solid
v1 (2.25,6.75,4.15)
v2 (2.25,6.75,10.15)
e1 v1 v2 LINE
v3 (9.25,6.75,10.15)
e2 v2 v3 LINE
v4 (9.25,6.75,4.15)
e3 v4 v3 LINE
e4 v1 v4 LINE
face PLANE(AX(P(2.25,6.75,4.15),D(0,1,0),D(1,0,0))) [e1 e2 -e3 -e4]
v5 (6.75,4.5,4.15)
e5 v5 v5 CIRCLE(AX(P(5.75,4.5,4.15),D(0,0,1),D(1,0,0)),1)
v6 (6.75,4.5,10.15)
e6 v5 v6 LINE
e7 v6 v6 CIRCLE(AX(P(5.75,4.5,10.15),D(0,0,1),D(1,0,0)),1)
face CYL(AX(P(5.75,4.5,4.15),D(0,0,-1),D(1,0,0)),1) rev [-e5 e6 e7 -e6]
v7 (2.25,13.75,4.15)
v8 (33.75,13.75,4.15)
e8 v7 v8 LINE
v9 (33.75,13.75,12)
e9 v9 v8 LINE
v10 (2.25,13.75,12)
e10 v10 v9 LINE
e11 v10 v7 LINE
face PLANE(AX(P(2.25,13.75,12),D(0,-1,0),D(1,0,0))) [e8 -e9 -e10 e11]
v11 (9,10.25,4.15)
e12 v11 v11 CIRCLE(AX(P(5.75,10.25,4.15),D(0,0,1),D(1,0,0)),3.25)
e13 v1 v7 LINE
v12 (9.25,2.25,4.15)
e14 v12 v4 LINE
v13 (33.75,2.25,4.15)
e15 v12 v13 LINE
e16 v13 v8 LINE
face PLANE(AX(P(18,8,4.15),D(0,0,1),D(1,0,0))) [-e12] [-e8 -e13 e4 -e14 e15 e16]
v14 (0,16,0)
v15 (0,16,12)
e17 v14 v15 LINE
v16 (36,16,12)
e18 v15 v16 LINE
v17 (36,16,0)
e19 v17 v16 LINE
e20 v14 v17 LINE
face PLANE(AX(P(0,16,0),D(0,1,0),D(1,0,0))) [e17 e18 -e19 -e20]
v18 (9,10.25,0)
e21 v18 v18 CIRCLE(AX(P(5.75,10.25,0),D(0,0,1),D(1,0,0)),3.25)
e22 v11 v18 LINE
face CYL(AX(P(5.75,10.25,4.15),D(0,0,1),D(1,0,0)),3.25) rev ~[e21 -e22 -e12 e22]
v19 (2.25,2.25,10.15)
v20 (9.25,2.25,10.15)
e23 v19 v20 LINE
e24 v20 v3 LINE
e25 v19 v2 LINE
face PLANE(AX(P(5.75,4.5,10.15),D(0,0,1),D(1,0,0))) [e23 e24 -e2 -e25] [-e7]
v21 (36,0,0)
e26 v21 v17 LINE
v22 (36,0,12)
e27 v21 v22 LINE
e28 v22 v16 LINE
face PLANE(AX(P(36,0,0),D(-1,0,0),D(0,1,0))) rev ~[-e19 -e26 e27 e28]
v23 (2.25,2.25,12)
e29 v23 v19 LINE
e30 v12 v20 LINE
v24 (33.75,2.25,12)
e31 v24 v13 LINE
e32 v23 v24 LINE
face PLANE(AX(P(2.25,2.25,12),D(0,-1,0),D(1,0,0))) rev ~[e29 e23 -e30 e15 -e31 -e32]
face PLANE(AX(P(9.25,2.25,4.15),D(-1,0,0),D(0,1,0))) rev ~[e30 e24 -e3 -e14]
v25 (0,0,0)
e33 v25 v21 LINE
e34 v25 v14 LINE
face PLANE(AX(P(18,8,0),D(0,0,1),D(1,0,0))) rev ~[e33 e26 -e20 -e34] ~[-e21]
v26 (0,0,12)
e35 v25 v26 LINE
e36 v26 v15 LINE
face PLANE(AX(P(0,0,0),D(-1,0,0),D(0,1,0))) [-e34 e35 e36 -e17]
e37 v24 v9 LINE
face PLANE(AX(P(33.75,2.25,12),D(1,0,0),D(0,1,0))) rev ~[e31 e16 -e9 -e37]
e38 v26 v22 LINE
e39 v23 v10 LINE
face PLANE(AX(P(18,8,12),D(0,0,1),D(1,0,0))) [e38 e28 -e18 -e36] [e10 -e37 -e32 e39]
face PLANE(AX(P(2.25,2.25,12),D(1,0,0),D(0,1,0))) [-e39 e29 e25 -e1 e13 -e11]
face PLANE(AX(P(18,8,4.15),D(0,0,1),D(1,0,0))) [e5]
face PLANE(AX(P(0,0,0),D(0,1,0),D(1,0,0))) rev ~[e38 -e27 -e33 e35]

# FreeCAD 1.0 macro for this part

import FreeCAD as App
import Part
import Sketcher

doc = App.newDocument("Part")
body = doc.addObject("PartDesign::Body", "Body")

sketch1 = body.newObject("Sketcher::SketchObject", "Sketch")
sketch1.AttachmentSupport = (doc.getObject("XY_Plane"), [""])
sketch1.MapMode = "FlatFace"
sketch1.addGeometry(Part.LineSegment(App.Vector(0, 16, 0), App.Vector(0, 0, 0)), False)
sketch1.addGeometry(Part.LineSegment(App.Vector(0, 0, 0), App.Vector(36, 0, 0)), False)
sketch1.addGeometry(Part.LineSegment(App.Vector(36, 0, 0), App.Vector(36, 16, 0)), False)
sketch1.addGeometry(Part.LineSegment(App.Vector(36, 16, 0), App.Vector(0, 16, 0)), False)
sketch1.addConstraint(Sketcher.Constraint("Coincident", 0, 2, 1, 1))
sketch1.addConstraint(Sketcher.Constraint("Coincident", 1, 2, 2, 1))
sketch1.addConstraint(Sketcher.Constraint("Coincident", 2, 2, 3, 1))
sketch1.addConstraint(Sketcher.Constraint("Coincident", 3, 2, 0, 1))
sketch1.addConstraint(Sketcher.Constraint("Vertical", 0))
sketch1.addConstraint(Sketcher.Constraint("Horizontal", 1))
sketch1.addConstraint(Sketcher.Constraint("Vertical", 2))
sketch1.addConstraint(Sketcher.Constraint("Horizontal", 3))
sketch1.addConstraint(Sketcher.Constraint("Coincident", 0, 2, -1, 1))
sketch1.addConstraint(Sketcher.Constraint("DistanceX", 1, 1, 1, 2, 36.0))
sketch1.addConstraint(Sketcher.Constraint("DistanceY", 0, 2, 0, 1, 16.0))
pad1 = body.newObject("PartDesign::Pad", "Pad")
pad1.Profile = sketch1
pad1.Length = 12

sketch2 = body.newObject("Sketcher::SketchObject", "Sketch001")
sketch2.AttachmentSupport = (doc.getObject("XY_Plane"), [""])
sketch2.MapMode = "FlatFace"
sketch2.AttachmentOffset = App.Placement(App.Vector(0, 0, 12), App.Rotation())
sketch2.addGeometry(Part.LineSegment(App.Vector(2, 14, 0), App.Vector(2, 2, 0)), False)
sketch2.addGeometry(Part.LineSegment(App.Vector(2, 2, 0), App.Vector(34, 2, 0)), False)
sketch2.addGeometry(Part.LineSegment(App.Vector(34, 2, 0), App.Vector(34, 14, 0)), False)
sketch2.addGeometry(Part.LineSegment(App.Vector(34, 14, 0), App.Vector(2, 14, 0)), False)
sketch2.addConstraint(Sketcher.Constraint("Coincident", 0, 2, 1, 1))
sketch2.addConstraint(Sketcher.Constraint("Coincident", 1, 2, 2, 1))
sketch2.addConstraint(Sketcher.Constraint("Coincident", 2, 2, 3, 1))
sketch2.addConstraint(Sketcher.Constraint("Coincident", 3, 2, 0, 1))
sketch2.addConstraint(Sketcher.Constraint("Vertical", 0))
sketch2.addConstraint(Sketcher.Constraint("Horizontal", 1))
sketch2.addConstraint(Sketcher.Constraint("Vertical", 2))
sketch2.addConstraint(Sketcher.Constraint("Horizontal", 3))
sketch2.addConstraint(Sketcher.Constraint("DistanceX", 1, 1, 1, 2, 31.5))
sketch2.addConstraint(Sketcher.Constraint("DistanceY", 0, 2, 0, 1, 11.5))
sketch2.addConstraint(Sketcher.Constraint("DistanceX", -1, 1, 0, 2, 2.25))
sketch2.addConstraint(Sketcher.Constraint("DistanceY", -1, 1, 0, 2, 2.25))
pocket1 = body.newObject("PartDesign::Pocket", "Pocket")
pocket1.Profile = sketch2
pocket1.Length = 7.85

sketch3 = body.newObject("Sketcher::SketchObject", "Sketch002")
sketch3.AttachmentSupport = (doc.getObject("XY_Plane"), [""])
sketch3.MapMode = "FlatFace"
sketch3.AttachmentOffset = App.Placement(App.Vector(0, 0, 4.15), App.Rotation())
sketch3.addGeometry(Part.LineSegment(App.Vector(2.2, 6.8, 0), App.Vector(2.2, 2.2, 0)), False)
sketch3.addGeometry(Part.LineSegment(App.Vector(2.2, 2.2, 0), App.Vector(9.2, 2.2, 0)), False)
sketch3.addGeometry(Part.LineSegment(App.Vector(9.2, 2.2, 0), App.Vector(9.2, 6.8, 0)), False)
sketch3.addGeometry(Part.LineSegment(App.Vector(9.2, 6.8, 0), App.Vector(2.2, 6.8, 0)), False)
sketch3.addGeometry(Part.Circle(App.Vector(5.8, 4.5, 0), App.Vector(0, 0, 1), 1), False)
sketch3.addConstraint(Sketcher.Constraint("Coincident", 0, 2, 1, 1))
sketch3.addConstraint(Sketcher.Constraint("Coincident", 1, 2, 2, 1))
sketch3.addConstraint(Sketcher.Constraint("Coincident", 2, 2, 3, 1))
sketch3.addConstraint(Sketcher.Constraint("Coincident", 3, 2, 0, 1))
sketch3.addConstraint(Sketcher.Constraint("Vertical", 0))
sketch3.addConstraint(Sketcher.Constraint("Horizontal", 1))
sketch3.addConstraint(Sketcher.Constraint("Vertical", 2))
sketch3.addConstraint(Sketcher.Constraint("Horizontal", 3))
sketch3.addConstraint(Sketcher.Constraint("Diameter", 4, 2.0))
sketch3.addConstraint(Sketcher.Constraint("DistanceX", 1, 1, 1, 2, 7.0))
sketch3.addConstraint(Sketcher.Constraint("DistanceY", 0, 2, 0, 1, 4.5))
sketch3.addConstraint(Sketcher.Constraint("DistanceY", -1, 1, 4, 3, 4.5))
sketch3.addConstraint(Sketcher.Constraint("DistanceX", 0, 2, 4, 3, 3.5))
sketch3.addConstraint(Sketcher.Constraint("DistanceX", -1, 1, 4, 3, 5.75))
sketch3.addConstraint(Sketcher.Constraint("DistanceY", -1, 1, 0, 2, 2.25))
pad2 = body.newObject("PartDesign::Pad", "Pad001")
pad2.Profile = sketch3
pad2.Length = 6

sketch4 = body.newObject("Sketcher::SketchObject", "Sketch003")
sketch4.AttachmentSupport = (doc.getObject("XY_Plane"), [""])
sketch4.MapMode = "FlatFace"
sketch4.AttachmentOffset = App.Placement(App.Vector(0, 0, 4.15), App.Rotation())
sketch4.addGeometry(Part.Circle(App.Vector(5.8, 10.2, 0), App.Vector(0, 0, 1), 3.2), False)
sketch4.addConstraint(Sketcher.Constraint("Diameter", 0, 6.5))
sketch4.addConstraint(Sketcher.Constraint("DistanceX", -1, 1, 0, 3, 5.75))
sketch4.addConstraint(Sketcher.Constraint("DistanceY", -1, 1, 0, 3, 10.25))
pocket2 = body.newObject("PartDesign::Pocket", "Pocket001")
pocket2.Profile = sketch4
pocket2.Length = 5

doc.recompute()
